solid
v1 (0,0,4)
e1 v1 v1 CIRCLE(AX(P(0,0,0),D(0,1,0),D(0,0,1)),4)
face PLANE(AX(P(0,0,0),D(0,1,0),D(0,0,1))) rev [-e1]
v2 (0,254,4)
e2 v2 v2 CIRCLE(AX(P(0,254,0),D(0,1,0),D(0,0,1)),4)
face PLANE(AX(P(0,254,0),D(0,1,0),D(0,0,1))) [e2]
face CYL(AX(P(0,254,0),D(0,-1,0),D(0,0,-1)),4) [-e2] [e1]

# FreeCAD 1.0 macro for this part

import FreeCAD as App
import Part
import Sketcher
from FreeCAD import Vector
Q = App.Units.Quantity

doc = App.newDocument("Part")
params = doc.addObject("Spreadsheet::Sheet", "Params")
for row, (alias, value) in enumerate([
    ("sketch1_diameter", "8 mm"),
    ("pad1_length", "254 mm"),
], start=1):
    params.set(f"A{row}", alias)
    params.set(f"B{row}", "=" + value)
    params.setAlias(f"B{row}", alias)

body = doc.addObject("PartDesign::Body", "Body")

# Sketch on XZ plane
sketch1 = doc.addObject("Sketcher::SketchObject", "Sketch")
body.addObject(sketch1)
sketch1.AttachmentSupport = (doc.XZ_Plane, [""])
sketch1.MapMode = "FlatFace"
sketch1.addGeometry(Part.Circle(Vector(0, 0, 0), Vector(0, 0, 1), 4), False)
sketch1.addConstraint(Sketcher.Constraint("Coincident", 0, 3, -1, 1))
sketch1.addConstraint(Sketcher.Constraint("Diameter", 0, Q("8 mm")))
sketch1.setExpression("Constraints[1]", "Params.sketch1_diameter")
pad1 = doc.addObject("PartDesign::Pad", "Pad")
body.addObject(pad1)
pad1.Profile = sketch1
pad1.setExpression("Length", "Params.pad1_length")
pad1.Reversed = True

doc.recompute()
